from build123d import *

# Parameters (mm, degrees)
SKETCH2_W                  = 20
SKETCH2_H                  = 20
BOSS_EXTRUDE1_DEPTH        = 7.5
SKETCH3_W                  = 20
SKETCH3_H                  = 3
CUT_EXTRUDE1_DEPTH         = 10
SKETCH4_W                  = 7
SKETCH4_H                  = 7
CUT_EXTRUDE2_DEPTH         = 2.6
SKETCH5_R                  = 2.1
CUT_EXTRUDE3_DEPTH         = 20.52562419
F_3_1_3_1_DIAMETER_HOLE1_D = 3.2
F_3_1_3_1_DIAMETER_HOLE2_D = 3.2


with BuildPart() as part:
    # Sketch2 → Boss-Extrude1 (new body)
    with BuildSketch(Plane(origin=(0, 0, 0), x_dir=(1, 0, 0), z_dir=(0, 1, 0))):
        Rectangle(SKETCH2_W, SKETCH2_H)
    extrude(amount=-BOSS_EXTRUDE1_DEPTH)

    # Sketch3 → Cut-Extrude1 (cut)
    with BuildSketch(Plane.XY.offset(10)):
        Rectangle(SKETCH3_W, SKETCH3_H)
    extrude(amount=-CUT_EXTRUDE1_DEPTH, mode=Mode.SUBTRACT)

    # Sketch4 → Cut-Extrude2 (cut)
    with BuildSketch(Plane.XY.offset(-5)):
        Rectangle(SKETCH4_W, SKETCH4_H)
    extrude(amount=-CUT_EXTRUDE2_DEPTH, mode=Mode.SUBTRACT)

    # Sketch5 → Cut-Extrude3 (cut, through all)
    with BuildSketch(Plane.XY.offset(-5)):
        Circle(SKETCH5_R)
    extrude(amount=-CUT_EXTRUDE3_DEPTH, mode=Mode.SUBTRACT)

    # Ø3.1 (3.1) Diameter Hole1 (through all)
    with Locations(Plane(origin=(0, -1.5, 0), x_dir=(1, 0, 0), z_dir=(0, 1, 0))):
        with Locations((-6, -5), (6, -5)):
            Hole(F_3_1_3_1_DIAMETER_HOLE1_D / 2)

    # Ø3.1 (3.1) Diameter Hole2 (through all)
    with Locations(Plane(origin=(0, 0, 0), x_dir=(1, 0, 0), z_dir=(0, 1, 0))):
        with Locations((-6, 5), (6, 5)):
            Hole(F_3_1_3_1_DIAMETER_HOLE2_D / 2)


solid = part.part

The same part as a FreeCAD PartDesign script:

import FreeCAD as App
import Part
import Sketcher
from FreeCAD import Vector
Q = App.Units.Quantity


def add_polygon(sketch, points):
    """Adds a closed chain of lines whose ends are joined by coincident constraints."""
    first, n = sketch.GeometryCount, len(points)
    for a, b in zip(points, points[1:] + points[:1]):
        sketch.addGeometry(Part.LineSegment(App.Vector(*a, 0), App.Vector(*b, 0)), False)
    for i in range(n):
        sketch.addConstraint(Sketcher.Constraint("Coincident", first + i, 2, first + (i + 1) % n, 1))

doc = App.newDocument("Part")
body = doc.addObject("PartDesign::Body", "Body")

# Sketch on XZ plane
sketch1 = body.newObject("Sketcher::SketchObject", "Sketch")
sketch1.AttachmentSupport = (doc.getObject("XZ_Plane"), [""])
sketch1.MapMode = "FlatFace"
add_polygon(sketch1, [(-10, -10), (-10, 10), (10, 10), (10, -10)])  # lines 0-3
sketch1.addConstraint(Sketcher.Constraint("Vertical", 0))
sketch1.addConstraint(Sketcher.Constraint("Horizontal", 1))
sketch1.addConstraint(Sketcher.Constraint("Vertical", 2))
sketch1.addConstraint(Sketcher.Constraint("Horizontal", 3))
sketch1.addConstraint(Sketcher.Constraint("Symmetric", 0, 2, 2, 2, -1, 1))
sketch1.addConstraint(Sketcher.Constraint("Equal", 3, 0))
sketch1.addConstraint(Sketcher.Constraint("DistanceX", 1, 1, 1, 2, Q("20 mm")))
pad1 = body.newObject("PartDesign::Pad", "Pad")
pad1.Profile = sketch1
pad1.Length = 7.5

# Sketch on XY plane
sketch2 = body.newObject("Sketcher::SketchObject", "Sketch001")
sketch2.AttachmentSupport = (doc.getObject("XY_Plane"), [""])
sketch2.MapMode = "FlatFace"
sketch2.AttachmentOffset = App.Placement(Vector(0, 0, 10), App.Rotation())
add_polygon(sketch2, [(-10, 1.5), (-10, -1.5), (10, -1.5), (10, 1.5)])  # lines 0-3
sketch2.addConstraint(Sketcher.Constraint("Vertical", 0))
sketch2.addConstraint(Sketcher.Constraint("Horizontal", 1))
sketch2.addConstraint(Sketcher.Constraint("Vertical", 2))
sketch2.addConstraint(Sketcher.Constraint("Horizontal", 3))
sketch2.addConstraint(Sketcher.Constraint("Symmetric", 0, 2, 2, 2, -1, 1))
sketch2.addConstraint(Sketcher.Constraint("DistanceX", 1, 1, 1, 2, Q("20 mm")))
sketch2.addConstraint(Sketcher.Constraint("DistanceY", 0, 2, 0, 1, Q("3 mm")))
pocket1 = body.newObject("PartDesign::Pocket", "Pocket")
pocket1.Profile = sketch2
pocket1.Length = 10

# Sketch on XY plane
sketch3 = body.newObject("Sketcher::SketchObject", "Sketch002")
sketch3.AttachmentSupport = (doc.getObject("XY_Plane"), [""])
sketch3.MapMode = "FlatFace"
sketch3.AttachmentOffset = App.Placement(Vector(0, 0, -5), App.Rotation())
add_polygon(sketch3, [(-3.5, 3.5), (-3.5, -3.5), (3.5, -3.5), (3.5, 3.5)])  # lines 0-3
sketch3.addConstraint(Sketcher.Constraint("Vertical", 0))
sketch3.addConstraint(Sketcher.Constraint("Horizontal", 1))
sketch3.addConstraint(Sketcher.Constraint("Vertical", 2))
sketch3.addConstraint(Sketcher.Constraint("Horizontal", 3))
sketch3.addConstraint(Sketcher.Constraint("Symmetric", 0, 2, 2, 2, -1, 1))
sketch3.addConstraint(Sketcher.Constraint("Equal", 3, 0))
sketch3.addConstraint(Sketcher.Constraint("DistanceX", 1, 1, 1, 2, Q("7 mm")))
pocket2 = body.newObject("PartDesign::Pocket", "Pocket001")
pocket2.Profile = sketch3
pocket2.Length = 2.6

# Sketch on XY plane
sketch4 = body.newObject("Sketcher::SketchObject", "Sketch003")
sketch4.AttachmentSupport = (doc.getObject("XY_Plane"), [""])
sketch4.MapMode = "FlatFace"
sketch4.AttachmentOffset = App.Placement(Vector(0, 0, -5), App.Rotation())
sketch4.addGeometry(Part.Circle(Vector(0, 0, 0), Vector(0, 0, 1), 2.1), False)
sketch4.addConstraint(Sketcher.Constraint("Coincident", 0, 3, -1, 1))
sketch4.addConstraint(Sketcher.Constraint("Diameter", 0, Q("4.2 mm")))
pocket3 = body.newObject("PartDesign::Pocket", "Pocket002")
pocket3.Profile = sketch4
pocket3.Type = "ThroughAll"

# Sketch on XZ plane
sketch5 = body.newObject("Sketcher::SketchObject", "Sketch004")
sketch5.AttachmentSupport = (doc.getObject("XZ_Plane"), [""])
sketch5.MapMode = "FlatFace"
sketch5.AttachmentOffset = App.Placement(Vector(0, 0, 1.5), App.Rotation())
sketch5.addGeometry(Part.Circle(Vector(-6, 5, 0), Vector(0, 0, 1), 1.6), False)
sketch5.addGeometry(Part.Circle(Vector(6, 5, 0), Vector(0, 0, 1), 1.6), False)
sketch5.addConstraint(Sketcher.Constraint("Equal", 0, 1))
sketch5.addConstraint(Sketcher.Constraint("Symmetric", 0, 3, 1, 3, -2))
sketch5.addConstraint(Sketcher.Constraint("Diameter", 0, Q("3.2 mm")))
sketch5.addConstraint(Sketcher.Constraint("DistanceX", 0, 3, -1, 1, Q("6 mm")))
sketch5.addConstraint(Sketcher.Constraint("DistanceY", -1, 1, 0, 3, Q("5 mm")))
doc.recompute()
hole = body.newObject("PartDesign::Hole", "Hole")
hole.Profile = sketch5
hole.ThreadType = "None"
hole.Diameter = 3.2
hole.DepthType = "ThroughAll"
hole.Reversed = True

# Sketch on XZ plane
sketch6 = body.newObject("Sketcher::SketchObject", "Sketch005")
sketch6.AttachmentSupport = (doc.getObject("XZ_Plane"), [""])
sketch6.MapMode = "FlatFace"
sketch6.addGeometry(Part.Circle(Vector(-6, -5, 0), Vector(0, 0, 1), 1.6), False)
sketch6.addGeometry(Part.Circle(Vector(6, -5, 0), Vector(0, 0, 1), 1.6), False)
sketch6.addConstraint(Sketcher.Constraint("Equal", 0, 1))
sketch6.addConstraint(Sketcher.Constraint("Symmetric", 0, 3, 1, 3, -2))
sketch6.addConstraint(Sketcher.Constraint("Diameter", 0, Q("3.2 mm")))
sketch6.addConstraint(Sketcher.Constraint("DistanceX", 0, 3, -1, 1, Q("6 mm")))
sketch6.addConstraint(Sketcher.Constraint("DistanceY", 0, 3, -1, 1, Q("5 mm")))
doc.recompute()
hole2 = body.newObject("PartDesign::Hole", "Hole001")
hole2.Profile = sketch6
hole2.ThreadType = "None"
hole2.Diameter = 3.2
hole2.DepthType = "ThroughAll"
hole2.Reversed = True

doc.recompute()
